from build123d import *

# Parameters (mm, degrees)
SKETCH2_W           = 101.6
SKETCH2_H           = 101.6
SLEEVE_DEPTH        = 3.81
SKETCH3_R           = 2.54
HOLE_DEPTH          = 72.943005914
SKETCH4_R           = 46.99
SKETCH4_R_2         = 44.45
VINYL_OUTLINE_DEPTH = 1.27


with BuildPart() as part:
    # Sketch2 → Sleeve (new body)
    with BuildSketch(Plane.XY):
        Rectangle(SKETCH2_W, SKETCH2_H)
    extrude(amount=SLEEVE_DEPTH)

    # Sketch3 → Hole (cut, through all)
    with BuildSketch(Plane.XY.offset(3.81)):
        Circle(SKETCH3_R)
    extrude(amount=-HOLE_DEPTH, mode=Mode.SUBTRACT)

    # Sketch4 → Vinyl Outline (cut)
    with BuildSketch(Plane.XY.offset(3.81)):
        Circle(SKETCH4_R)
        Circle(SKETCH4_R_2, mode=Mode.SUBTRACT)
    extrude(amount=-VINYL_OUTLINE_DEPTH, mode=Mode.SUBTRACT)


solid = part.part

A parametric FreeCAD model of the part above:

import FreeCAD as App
import Part
import Sketcher

V = App.Vector
Q = App.Units.Quantity

doc = App.newDocument("Part")
body = doc.addObject("PartDesign::Body", "Body")

# Sketch on XY plane
sketch1 = doc.addObject("Sketcher::SketchObject", "Sketch")
body.addObject(sketch1)
sketch1.AttachmentSupport = (doc.XY_Plane, [""])
sketch1.MapMode = "FlatFace"
sketch1.addGeometry([
    Part.LineSegment(V(-51, 51, 0), V(-51, -51, 0)),
    Part.LineSegment(V(-51, -51, 0), V(51, -51, 0)),
    Part.LineSegment(V(51, -51, 0), V(51, 51, 0)),
    Part.LineSegment(V(51, 51, 0), V(-51, 51, 0)),
], False)
sketch1.addConstraint([
    Sketcher.Constraint("Coincident", 0, 2, 1, 1),
    Sketcher.Constraint("Coincident", 1, 2, 2, 1),
    Sketcher.Constraint("Coincident", 2, 2, 3, 1),
    Sketcher.Constraint("Coincident", 3, 2, 0, 1),
    Sketcher.Constraint("Vertical", 0),
    Sketcher.Constraint("Horizontal", 1),
    Sketcher.Constraint("Vertical", 2),
    Sketcher.Constraint("Horizontal", 3),
    Sketcher.Constraint("Symmetric", 0, 2, 2, 2, -1, 1),
    Sketcher.Constraint("Equal", 3, 0),
    Sketcher.Constraint("DistanceX", 1, 1, 1, 2, Q("4 in")),
])
pad1 = doc.addObject("PartDesign::Pad", "Pad")
body.addObject(pad1)
pad1.Profile = sketch1
pad1.Length = Q("0.15 in")

# Sketch on XY plane
sketch2 = doc.addObject("Sketcher::SketchObject", "Sketch001")
body.addObject(sketch2)
sketch2.AttachmentSupport = (doc.XY_Plane, [""])
sketch2.MapMode = "FlatFace"
sketch2.AttachmentOffset = App.Placement(V(0, 0, 0.15 * 25.4), App.Rotation())
sketch2.addGeometry(Part.Circle(V(0, 0, 0), V(0, 0, 1), 2.5), False)
sketch2.addConstraint([
    Sketcher.Constraint("Coincident", 0, 3, -1, 1),
    Sketcher.Constraint("Diameter", 0, Q("0.2 in")),
])
pocket1 = doc.addObject("PartDesign::Pocket", "Pocket")
body.addObject(pocket1)
pocket1.Profile = sketch2
pocket1.Type = "ThroughAll"

# Sketch on XY plane
sketch3 = doc.addObject("Sketcher::SketchObject", "Sketch002")
body.addObject(sketch3)
sketch3.AttachmentSupport = (doc.XY_Plane, [""])
sketch3.MapMode = "FlatFace"
sketch3.AttachmentOffset = App.Placement(V(0, 0, 0.15 * 25.4), App.Rotation())
sketch3.addGeometry([
    Part.Circle(V(0, 0, 0), V(0, 0, 1), 47),
    Part.Circle(V(0, 0, 0), V(0, 0, 1), 44),
], False)
sketch3.addConstraint([
    Sketcher.Constraint("Coincident", 0, 3, -1, 1),
    Sketcher.Constraint("Coincident", 1, 3, -1, 1),
    Sketcher.Constraint("Diameter", 0, Q("3.7 in")),
    Sketcher.Constraint("Diameter", 1, Q("3.5 in")),
])
pocket2 = doc.addObject("PartDesign::Pocket", "Pocket001")
body.addObject(pocket2)
pocket2.Profile = sketch3
pocket2.Length = Q("0.05 in")

doc.recompute()
